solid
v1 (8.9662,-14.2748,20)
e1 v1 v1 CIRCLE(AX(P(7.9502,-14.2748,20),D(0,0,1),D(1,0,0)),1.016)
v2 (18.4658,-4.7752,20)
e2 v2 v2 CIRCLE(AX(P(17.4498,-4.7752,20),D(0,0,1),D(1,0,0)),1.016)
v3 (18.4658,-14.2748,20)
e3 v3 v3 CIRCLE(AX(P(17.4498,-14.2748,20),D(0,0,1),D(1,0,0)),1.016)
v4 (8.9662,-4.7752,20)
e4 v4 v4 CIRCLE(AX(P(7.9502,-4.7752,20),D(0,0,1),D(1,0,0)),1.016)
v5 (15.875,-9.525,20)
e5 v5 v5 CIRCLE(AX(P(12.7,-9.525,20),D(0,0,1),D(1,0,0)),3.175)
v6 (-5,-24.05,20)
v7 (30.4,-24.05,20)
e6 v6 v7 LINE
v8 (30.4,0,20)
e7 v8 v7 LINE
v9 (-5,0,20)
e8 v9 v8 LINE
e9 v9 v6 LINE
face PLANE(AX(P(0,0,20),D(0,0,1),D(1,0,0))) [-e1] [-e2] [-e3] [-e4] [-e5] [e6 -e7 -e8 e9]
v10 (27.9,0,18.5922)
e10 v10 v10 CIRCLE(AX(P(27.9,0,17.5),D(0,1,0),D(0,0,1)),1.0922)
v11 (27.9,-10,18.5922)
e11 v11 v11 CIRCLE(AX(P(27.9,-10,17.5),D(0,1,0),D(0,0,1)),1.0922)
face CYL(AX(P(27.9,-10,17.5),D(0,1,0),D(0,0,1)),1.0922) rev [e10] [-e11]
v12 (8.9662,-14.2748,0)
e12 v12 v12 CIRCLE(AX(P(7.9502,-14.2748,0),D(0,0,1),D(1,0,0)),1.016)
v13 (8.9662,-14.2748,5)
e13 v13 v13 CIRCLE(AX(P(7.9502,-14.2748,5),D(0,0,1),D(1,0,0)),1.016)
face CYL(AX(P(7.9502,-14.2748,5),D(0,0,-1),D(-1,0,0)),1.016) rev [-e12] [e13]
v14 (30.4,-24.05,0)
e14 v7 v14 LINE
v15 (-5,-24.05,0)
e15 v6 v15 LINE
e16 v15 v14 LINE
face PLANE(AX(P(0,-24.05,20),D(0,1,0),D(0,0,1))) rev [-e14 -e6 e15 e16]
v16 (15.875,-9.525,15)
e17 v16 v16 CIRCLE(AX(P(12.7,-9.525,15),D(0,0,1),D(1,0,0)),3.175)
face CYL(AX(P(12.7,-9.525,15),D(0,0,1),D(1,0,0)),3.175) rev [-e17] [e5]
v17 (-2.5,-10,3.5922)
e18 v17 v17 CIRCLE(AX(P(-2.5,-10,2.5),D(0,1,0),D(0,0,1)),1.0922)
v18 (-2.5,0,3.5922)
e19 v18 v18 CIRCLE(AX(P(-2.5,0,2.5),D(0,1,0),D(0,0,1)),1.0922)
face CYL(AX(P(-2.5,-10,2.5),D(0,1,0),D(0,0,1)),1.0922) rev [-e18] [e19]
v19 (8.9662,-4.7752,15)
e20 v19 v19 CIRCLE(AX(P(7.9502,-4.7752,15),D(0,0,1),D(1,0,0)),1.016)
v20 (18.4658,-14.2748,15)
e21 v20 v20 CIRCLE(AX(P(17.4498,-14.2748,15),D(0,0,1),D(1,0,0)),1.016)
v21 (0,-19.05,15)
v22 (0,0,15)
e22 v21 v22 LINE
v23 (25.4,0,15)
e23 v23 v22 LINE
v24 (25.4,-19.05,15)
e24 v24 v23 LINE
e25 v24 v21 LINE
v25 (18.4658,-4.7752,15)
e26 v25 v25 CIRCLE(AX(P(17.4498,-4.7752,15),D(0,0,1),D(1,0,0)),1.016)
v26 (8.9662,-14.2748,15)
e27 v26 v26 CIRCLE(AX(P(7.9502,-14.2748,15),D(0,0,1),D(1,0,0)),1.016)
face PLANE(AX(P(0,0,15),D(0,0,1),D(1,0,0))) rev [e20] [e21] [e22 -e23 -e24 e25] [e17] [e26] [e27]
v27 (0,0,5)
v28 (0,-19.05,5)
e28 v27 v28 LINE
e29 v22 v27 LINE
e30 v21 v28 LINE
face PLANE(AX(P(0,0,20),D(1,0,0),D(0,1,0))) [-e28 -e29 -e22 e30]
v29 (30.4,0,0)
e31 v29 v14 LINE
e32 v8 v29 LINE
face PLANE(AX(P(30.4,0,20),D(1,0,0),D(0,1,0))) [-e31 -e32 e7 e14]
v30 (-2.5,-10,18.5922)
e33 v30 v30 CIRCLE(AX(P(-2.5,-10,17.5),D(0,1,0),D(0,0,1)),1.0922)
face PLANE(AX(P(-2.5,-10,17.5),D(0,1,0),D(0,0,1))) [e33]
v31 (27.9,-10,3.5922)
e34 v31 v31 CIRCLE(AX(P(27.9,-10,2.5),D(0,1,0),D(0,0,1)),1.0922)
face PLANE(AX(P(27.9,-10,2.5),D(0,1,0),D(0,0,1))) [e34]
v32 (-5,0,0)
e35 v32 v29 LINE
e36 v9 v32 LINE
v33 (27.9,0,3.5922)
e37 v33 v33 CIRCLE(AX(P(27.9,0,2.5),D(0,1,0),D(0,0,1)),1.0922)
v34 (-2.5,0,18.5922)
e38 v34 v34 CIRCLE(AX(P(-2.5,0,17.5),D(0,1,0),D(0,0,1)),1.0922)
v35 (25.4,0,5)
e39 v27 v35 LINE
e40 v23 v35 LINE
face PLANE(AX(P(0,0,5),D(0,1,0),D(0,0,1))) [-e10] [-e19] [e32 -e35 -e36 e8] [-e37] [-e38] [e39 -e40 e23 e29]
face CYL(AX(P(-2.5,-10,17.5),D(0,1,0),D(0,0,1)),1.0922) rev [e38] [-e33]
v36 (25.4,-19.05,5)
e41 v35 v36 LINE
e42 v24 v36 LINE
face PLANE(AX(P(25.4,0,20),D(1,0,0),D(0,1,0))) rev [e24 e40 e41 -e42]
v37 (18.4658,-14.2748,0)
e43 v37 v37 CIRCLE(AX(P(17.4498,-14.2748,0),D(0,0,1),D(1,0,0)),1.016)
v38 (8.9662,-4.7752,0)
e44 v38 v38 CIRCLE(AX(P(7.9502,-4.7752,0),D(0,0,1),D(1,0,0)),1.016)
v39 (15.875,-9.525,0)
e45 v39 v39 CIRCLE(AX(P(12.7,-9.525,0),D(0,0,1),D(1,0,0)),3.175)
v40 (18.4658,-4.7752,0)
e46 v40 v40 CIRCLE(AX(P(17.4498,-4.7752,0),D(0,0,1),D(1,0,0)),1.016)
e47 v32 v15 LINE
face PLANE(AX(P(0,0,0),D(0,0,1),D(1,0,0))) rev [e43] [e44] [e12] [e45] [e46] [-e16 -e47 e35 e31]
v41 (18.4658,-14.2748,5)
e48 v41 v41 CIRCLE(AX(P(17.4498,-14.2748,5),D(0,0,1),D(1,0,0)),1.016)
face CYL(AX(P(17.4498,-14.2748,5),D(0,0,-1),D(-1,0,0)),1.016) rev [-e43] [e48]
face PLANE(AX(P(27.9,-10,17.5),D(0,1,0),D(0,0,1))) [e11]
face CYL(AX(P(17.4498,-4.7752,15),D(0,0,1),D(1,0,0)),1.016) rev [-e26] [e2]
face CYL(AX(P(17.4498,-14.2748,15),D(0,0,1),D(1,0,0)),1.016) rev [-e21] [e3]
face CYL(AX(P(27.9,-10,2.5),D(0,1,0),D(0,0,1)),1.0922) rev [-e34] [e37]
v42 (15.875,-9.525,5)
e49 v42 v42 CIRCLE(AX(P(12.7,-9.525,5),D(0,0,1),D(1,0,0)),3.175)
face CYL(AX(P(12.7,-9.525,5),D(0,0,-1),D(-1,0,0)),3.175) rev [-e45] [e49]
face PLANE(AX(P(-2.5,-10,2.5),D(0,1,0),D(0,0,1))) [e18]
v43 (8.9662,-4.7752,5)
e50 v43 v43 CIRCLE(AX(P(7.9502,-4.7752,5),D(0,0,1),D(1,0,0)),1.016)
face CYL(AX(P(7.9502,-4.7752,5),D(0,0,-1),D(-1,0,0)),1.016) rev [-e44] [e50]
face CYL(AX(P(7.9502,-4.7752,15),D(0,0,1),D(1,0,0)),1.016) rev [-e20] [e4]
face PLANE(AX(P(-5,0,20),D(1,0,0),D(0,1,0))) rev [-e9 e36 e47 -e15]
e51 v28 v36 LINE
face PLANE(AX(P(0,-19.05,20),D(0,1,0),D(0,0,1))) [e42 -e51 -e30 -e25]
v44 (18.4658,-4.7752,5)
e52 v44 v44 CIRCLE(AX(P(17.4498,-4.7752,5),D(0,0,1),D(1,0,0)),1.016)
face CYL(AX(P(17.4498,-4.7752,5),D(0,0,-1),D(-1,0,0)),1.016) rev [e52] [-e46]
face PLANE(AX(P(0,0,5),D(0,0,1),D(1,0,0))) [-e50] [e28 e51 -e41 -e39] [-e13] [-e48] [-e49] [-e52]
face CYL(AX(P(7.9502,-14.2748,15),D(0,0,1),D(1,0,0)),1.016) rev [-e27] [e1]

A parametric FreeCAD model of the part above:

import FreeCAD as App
import Part
import Sketcher
Q = App.Units.Quantity


def add_polygon(sketch, points):
    """Adds a closed chain of lines whose ends are joined by coincident constraints."""
    first, n = sketch.GeometryCount, len(points)
    for a, b in zip(points, points[1:] + points[:1]):
        sketch.addGeometry(Part.LineSegment(App.Vector(*a, 0), App.Vector(*b, 0)), False)
    for i in range(n):
        sketch.addConstraint(Sketcher.Constraint("Coincident", first + i, 2, first + (i + 1) % n, 1))

doc = App.newDocument("Part")
body = doc.addObject("PartDesign::Body", "Body")

# Sketch on XY plane
sketch1 = doc.addObject("Sketcher::SketchObject", "Sketch")
body.addObject(sketch1)
sketch1.AttachmentSupport = (doc.XY_Plane, [""])
sketch1.MapMode = "FlatFace"
add_polygon(sketch1, [(0, 0), (0, -19.05), (25.4, -19.05), (25.4, 0)])  # lines 0-3
sketch1.addGeometry(Part.Circle(App.Vector(7.9502, -14.2748, 0), App.Vector(0, 0, 1), 1.016), False)  # 4
sketch1.addGeometry(Part.Circle(App.Vector(12.7, -9.525, 0), App.Vector(0, 0, 1), 3.175), False)  # 5
sketch1.addGeometry(Part.Circle(App.Vector(17.4498, -14.2748, 0), App.Vector(0, 0, 1), 1.016), False)  # 6
sketch1.addGeometry(Part.Circle(App.Vector(7.9502, -4.7752, 0), App.Vector(0, 0, 1), 1.016), False)  # 7
sketch1.addGeometry(Part.Circle(App.Vector(17.4498, -4.7752, 0), App.Vector(0, 0, 1), 1.016), False)  # 8
sketch1.addConstraint([
    Sketcher.Constraint("Vertical", 0),
    Sketcher.Constraint("Horizontal", 1),
    Sketcher.Constraint("Vertical", 2),
    Sketcher.Constraint("Horizontal", 3),
    Sketcher.Constraint("Coincident", 3, 2, -1, 1),
    Sketcher.Constraint("Equal", 4, 6),
    Sketcher.Constraint("Equal", 6, 7),
    Sketcher.Constraint("Equal", 7, 8),
    Sketcher.Constraint("Horizontal", 4, 3, 6, 3),
    Sketcher.Constraint("Horizontal", 7, 3, 8, 3),
    Sketcher.Constraint("Vertical", 4, 3, 7, 3),
    Sketcher.Constraint("Vertical", 6, 3, 8, 3),
    Sketcher.Constraint("Diameter", 4, Q("0.08 in")),
    Sketcher.Constraint("Diameter", 5, Q("0.25 in")),
    Sketcher.Constraint("DistanceX", 1, 1, 1, 2, Q("1 in")),
    Sketcher.Constraint("DistanceY", 0, 2, 0, 1, Q("0.75 in")),
    Sketcher.Constraint("DistanceX", -1, 1, 5, 3, Q("0.5 in")),
    Sketcher.Constraint("DistanceX", -1, 1, 4, 3, Q("0.313 in")),
    Sketcher.Constraint("DistanceY", 4, 3, -1, 1, Q("0.562 in")),
    Sketcher.Constraint("DistanceY", 5, 3, -1, 1, Q("0.375 in")),
    Sketcher.Constraint("DistanceX", -1, 1, 6, 3, Q("0.687 in")),
    Sketcher.Constraint("DistanceY", 7, 3, -1, 1, Q("0.188 in")),
])
pad1 = doc.addObject("PartDesign::Pad", "Pad")
body.addObject(pad1)
pad1.Profile = sketch1
pad1.Length = 5

# Sketch on XY plane
sketch2 = doc.addObject("Sketcher::SketchObject", "Sketch001")
body.addObject(sketch2)
sketch2.AttachmentSupport = (doc.XY_Plane, [""])
sketch2.MapMode = "FlatFace"
add_polygon(sketch2, [(30.4, -24.05), (30.4, 0), (25.4, 0), (25.4, -19.05), (0, -19.05), (0, 0), (-5, 0), (-5, -24.05)])  # lines 0-7
sketch2.addConstraint([
    Sketcher.Constraint("Vertical", 0),
    Sketcher.Constraint("Horizontal", 1),
    Sketcher.Constraint("Vertical", 2),
    Sketcher.Constraint("Horizontal", 3),
    Sketcher.Constraint("Vertical", 4),
    Sketcher.Constraint("Horizontal", 5),
    Sketcher.Constraint("Vertical", 6),
    Sketcher.Constraint("Horizontal", 7),
    Sketcher.Constraint("Coincident", 4, 2, -1, 1),
    Sketcher.Constraint("PointOnObject", 0, 2, -1),
    Sketcher.Constraint("Equal", 1, 5),
    Sketcher.Constraint("DistanceX", 3, 2, 3, 1, Q("1 in")),
    Sketcher.Constraint("DistanceY", 2, 2, 2, 1, Q("0.75 in")),
    Sketcher.Constraint("DistanceX", 1, 2, 1, 1, Q("5 mm")),
    Sketcher.Constraint("DistanceY", 0, 1, 0, 2, Q("24.05 mm")),
])
pad2 = doc.addObject("PartDesign::Pad", "Pad001")
body.addObject(pad2)
pad2.Profile = sketch2
pad2.Length = 20

# Sketch on XY plane
sketch3 = doc.addObject("Sketcher::SketchObject", "Sketch002")
body.addObject(sketch3)
sketch3.AttachmentSupport = (doc.XY_Plane, [""])
sketch3.MapMode = "FlatFace"
sketch3.AttachmentOffset = App.Placement(App.Vector(0, 0, 20), App.Rotation())
add_polygon(sketch3, [(0, 0), (0, -19.05), (25.4, -19.05), (25.4, 0)])  # lines 0-3
sketch3.addGeometry(Part.Circle(App.Vector(7.9502, -14.2748, 0), App.Vector(0, 0, 1), 1.016), False)  # 4
sketch3.addGeometry(Part.Circle(App.Vector(12.7, -9.525, 0), App.Vector(0, 0, 1), 3.175), False)  # 5
sketch3.addGeometry(Part.Circle(App.Vector(17.4498, -14.2748, 0), App.Vector(0, 0, 1), 1.016), False)  # 6
sketch3.addGeometry(Part.Circle(App.Vector(7.9502, -4.7752, 0), App.Vector(0, 0, 1), 1.016), False)  # 7
sketch3.addGeometry(Part.Circle(App.Vector(17.4498, -4.7752, 0), App.Vector(0, 0, 1), 1.016), False)  # 8
sketch3.addConstraint([
    Sketcher.Constraint("Vertical", 0),
    Sketcher.Constraint("Horizontal", 1),
    Sketcher.Constraint("Vertical", 2),
    Sketcher.Constraint("Horizontal", 3),
    Sketcher.Constraint("Coincident", 3, 2, -1, 1),
    Sketcher.Constraint("Equal", 4, 6),
    Sketcher.Constraint("Equal", 6, 7),
    Sketcher.Constraint("Equal", 7, 8),
    Sketcher.Constraint("Horizontal", 4, 3, 6, 3),
    Sketcher.Constraint("Horizontal", 7, 3, 8, 3),
    Sketcher.Constraint("Vertical", 4, 3, 7, 3),
    Sketcher.Constraint("Vertical", 6, 3, 8, 3),
    Sketcher.Constraint("Diameter", 4, Q("0.08 in")),
    Sketcher.Constraint("Diameter", 5, Q("0.25 in")),
    Sketcher.Constraint("DistanceX", 1, 1, 1, 2, Q("1 in")),
    Sketcher.Constraint("DistanceY", 0, 2, 0, 1, Q("0.75 in")),
    Sketcher.Constraint("DistanceX", -1, 1, 5, 3, Q("0.5 in")),
    Sketcher.Constraint("DistanceX", -1, 1, 4, 3, Q("0.313 in")),
    Sketcher.Constraint("DistanceY", 4, 3, -1, 1, Q("0.562 in")),
    Sketcher.Constraint("DistanceY", 5, 3, -1, 1, Q("0.375 in")),
    Sketcher.Constraint("DistanceX", -1, 1, 6, 3, Q("0.687 in")),
    Sketcher.Constraint("DistanceY", 7, 3, -1, 1, Q("0.188 in")),
])
pad3 = doc.addObject("PartDesign::Pad", "Pad002")
body.addObject(pad3)
pad3.Profile = sketch3
pad3.Length = 5
pad3.Reversed = True

# Sketch on XZ plane
sketch4 = doc.addObject("Sketcher::SketchObject", "Sketch003")
body.addObject(sketch4)
sketch4.AttachmentSupport = (doc.XZ_Plane, [""])
sketch4.MapMode = "FlatFace"
sketch4.addGeometry([
    Part.Circle(App.Vector(-2.5, 2.5, 0), App.Vector(0, 0, 1), 1.0922),
    Part.Circle(App.Vector(27.9, 2.5, 0), App.Vector(0, 0, 1), 1.0922),
    Part.Circle(App.Vector(27.9, 17.5, 0), App.Vector(0, 0, 1), 1.0922),
    Part.Circle(App.Vector(-2.5, 17.5, 0), App.Vector(0, 0, 1), 1.0922),
], False)
sketch4.addConstraint([
    Sketcher.Constraint("Equal", 0, 1),
    Sketcher.Constraint("Equal", 1, 2),
    Sketcher.Constraint("Equal", 2, 3),
    Sketcher.Constraint("Horizontal", 0, 3, 1, 3),
    Sketcher.Constraint("Horizontal", 2, 3, 3, 3),
    Sketcher.Constraint("Vertical", 1, 3, 2, 3),
    Sketcher.Constraint("Vertical", 0, 3, 3, 3),
    Sketcher.Constraint("Diameter", 0, Q("0.086 in")),
    Sketcher.Constraint("DistanceX", 0, 3, -1, 1, Q("2.5 mm")),
    Sketcher.Constraint("DistanceY", -1, 1, 0, 3, Q("2.5 mm")),
    Sketcher.Constraint("DistanceX", -1, 1, 1, 3, Q("27.9 mm")),
    Sketcher.Constraint("DistanceY", -1, 1, 2, 3, Q("17.5 mm")),
])
pocket1 = doc.addObject("PartDesign::Pocket", "Pocket")
body.addObject(pocket1)
pocket1.Profile = sketch4
pocket1.Length = 10
pocket1.Reversed = True

doc.recompute()
